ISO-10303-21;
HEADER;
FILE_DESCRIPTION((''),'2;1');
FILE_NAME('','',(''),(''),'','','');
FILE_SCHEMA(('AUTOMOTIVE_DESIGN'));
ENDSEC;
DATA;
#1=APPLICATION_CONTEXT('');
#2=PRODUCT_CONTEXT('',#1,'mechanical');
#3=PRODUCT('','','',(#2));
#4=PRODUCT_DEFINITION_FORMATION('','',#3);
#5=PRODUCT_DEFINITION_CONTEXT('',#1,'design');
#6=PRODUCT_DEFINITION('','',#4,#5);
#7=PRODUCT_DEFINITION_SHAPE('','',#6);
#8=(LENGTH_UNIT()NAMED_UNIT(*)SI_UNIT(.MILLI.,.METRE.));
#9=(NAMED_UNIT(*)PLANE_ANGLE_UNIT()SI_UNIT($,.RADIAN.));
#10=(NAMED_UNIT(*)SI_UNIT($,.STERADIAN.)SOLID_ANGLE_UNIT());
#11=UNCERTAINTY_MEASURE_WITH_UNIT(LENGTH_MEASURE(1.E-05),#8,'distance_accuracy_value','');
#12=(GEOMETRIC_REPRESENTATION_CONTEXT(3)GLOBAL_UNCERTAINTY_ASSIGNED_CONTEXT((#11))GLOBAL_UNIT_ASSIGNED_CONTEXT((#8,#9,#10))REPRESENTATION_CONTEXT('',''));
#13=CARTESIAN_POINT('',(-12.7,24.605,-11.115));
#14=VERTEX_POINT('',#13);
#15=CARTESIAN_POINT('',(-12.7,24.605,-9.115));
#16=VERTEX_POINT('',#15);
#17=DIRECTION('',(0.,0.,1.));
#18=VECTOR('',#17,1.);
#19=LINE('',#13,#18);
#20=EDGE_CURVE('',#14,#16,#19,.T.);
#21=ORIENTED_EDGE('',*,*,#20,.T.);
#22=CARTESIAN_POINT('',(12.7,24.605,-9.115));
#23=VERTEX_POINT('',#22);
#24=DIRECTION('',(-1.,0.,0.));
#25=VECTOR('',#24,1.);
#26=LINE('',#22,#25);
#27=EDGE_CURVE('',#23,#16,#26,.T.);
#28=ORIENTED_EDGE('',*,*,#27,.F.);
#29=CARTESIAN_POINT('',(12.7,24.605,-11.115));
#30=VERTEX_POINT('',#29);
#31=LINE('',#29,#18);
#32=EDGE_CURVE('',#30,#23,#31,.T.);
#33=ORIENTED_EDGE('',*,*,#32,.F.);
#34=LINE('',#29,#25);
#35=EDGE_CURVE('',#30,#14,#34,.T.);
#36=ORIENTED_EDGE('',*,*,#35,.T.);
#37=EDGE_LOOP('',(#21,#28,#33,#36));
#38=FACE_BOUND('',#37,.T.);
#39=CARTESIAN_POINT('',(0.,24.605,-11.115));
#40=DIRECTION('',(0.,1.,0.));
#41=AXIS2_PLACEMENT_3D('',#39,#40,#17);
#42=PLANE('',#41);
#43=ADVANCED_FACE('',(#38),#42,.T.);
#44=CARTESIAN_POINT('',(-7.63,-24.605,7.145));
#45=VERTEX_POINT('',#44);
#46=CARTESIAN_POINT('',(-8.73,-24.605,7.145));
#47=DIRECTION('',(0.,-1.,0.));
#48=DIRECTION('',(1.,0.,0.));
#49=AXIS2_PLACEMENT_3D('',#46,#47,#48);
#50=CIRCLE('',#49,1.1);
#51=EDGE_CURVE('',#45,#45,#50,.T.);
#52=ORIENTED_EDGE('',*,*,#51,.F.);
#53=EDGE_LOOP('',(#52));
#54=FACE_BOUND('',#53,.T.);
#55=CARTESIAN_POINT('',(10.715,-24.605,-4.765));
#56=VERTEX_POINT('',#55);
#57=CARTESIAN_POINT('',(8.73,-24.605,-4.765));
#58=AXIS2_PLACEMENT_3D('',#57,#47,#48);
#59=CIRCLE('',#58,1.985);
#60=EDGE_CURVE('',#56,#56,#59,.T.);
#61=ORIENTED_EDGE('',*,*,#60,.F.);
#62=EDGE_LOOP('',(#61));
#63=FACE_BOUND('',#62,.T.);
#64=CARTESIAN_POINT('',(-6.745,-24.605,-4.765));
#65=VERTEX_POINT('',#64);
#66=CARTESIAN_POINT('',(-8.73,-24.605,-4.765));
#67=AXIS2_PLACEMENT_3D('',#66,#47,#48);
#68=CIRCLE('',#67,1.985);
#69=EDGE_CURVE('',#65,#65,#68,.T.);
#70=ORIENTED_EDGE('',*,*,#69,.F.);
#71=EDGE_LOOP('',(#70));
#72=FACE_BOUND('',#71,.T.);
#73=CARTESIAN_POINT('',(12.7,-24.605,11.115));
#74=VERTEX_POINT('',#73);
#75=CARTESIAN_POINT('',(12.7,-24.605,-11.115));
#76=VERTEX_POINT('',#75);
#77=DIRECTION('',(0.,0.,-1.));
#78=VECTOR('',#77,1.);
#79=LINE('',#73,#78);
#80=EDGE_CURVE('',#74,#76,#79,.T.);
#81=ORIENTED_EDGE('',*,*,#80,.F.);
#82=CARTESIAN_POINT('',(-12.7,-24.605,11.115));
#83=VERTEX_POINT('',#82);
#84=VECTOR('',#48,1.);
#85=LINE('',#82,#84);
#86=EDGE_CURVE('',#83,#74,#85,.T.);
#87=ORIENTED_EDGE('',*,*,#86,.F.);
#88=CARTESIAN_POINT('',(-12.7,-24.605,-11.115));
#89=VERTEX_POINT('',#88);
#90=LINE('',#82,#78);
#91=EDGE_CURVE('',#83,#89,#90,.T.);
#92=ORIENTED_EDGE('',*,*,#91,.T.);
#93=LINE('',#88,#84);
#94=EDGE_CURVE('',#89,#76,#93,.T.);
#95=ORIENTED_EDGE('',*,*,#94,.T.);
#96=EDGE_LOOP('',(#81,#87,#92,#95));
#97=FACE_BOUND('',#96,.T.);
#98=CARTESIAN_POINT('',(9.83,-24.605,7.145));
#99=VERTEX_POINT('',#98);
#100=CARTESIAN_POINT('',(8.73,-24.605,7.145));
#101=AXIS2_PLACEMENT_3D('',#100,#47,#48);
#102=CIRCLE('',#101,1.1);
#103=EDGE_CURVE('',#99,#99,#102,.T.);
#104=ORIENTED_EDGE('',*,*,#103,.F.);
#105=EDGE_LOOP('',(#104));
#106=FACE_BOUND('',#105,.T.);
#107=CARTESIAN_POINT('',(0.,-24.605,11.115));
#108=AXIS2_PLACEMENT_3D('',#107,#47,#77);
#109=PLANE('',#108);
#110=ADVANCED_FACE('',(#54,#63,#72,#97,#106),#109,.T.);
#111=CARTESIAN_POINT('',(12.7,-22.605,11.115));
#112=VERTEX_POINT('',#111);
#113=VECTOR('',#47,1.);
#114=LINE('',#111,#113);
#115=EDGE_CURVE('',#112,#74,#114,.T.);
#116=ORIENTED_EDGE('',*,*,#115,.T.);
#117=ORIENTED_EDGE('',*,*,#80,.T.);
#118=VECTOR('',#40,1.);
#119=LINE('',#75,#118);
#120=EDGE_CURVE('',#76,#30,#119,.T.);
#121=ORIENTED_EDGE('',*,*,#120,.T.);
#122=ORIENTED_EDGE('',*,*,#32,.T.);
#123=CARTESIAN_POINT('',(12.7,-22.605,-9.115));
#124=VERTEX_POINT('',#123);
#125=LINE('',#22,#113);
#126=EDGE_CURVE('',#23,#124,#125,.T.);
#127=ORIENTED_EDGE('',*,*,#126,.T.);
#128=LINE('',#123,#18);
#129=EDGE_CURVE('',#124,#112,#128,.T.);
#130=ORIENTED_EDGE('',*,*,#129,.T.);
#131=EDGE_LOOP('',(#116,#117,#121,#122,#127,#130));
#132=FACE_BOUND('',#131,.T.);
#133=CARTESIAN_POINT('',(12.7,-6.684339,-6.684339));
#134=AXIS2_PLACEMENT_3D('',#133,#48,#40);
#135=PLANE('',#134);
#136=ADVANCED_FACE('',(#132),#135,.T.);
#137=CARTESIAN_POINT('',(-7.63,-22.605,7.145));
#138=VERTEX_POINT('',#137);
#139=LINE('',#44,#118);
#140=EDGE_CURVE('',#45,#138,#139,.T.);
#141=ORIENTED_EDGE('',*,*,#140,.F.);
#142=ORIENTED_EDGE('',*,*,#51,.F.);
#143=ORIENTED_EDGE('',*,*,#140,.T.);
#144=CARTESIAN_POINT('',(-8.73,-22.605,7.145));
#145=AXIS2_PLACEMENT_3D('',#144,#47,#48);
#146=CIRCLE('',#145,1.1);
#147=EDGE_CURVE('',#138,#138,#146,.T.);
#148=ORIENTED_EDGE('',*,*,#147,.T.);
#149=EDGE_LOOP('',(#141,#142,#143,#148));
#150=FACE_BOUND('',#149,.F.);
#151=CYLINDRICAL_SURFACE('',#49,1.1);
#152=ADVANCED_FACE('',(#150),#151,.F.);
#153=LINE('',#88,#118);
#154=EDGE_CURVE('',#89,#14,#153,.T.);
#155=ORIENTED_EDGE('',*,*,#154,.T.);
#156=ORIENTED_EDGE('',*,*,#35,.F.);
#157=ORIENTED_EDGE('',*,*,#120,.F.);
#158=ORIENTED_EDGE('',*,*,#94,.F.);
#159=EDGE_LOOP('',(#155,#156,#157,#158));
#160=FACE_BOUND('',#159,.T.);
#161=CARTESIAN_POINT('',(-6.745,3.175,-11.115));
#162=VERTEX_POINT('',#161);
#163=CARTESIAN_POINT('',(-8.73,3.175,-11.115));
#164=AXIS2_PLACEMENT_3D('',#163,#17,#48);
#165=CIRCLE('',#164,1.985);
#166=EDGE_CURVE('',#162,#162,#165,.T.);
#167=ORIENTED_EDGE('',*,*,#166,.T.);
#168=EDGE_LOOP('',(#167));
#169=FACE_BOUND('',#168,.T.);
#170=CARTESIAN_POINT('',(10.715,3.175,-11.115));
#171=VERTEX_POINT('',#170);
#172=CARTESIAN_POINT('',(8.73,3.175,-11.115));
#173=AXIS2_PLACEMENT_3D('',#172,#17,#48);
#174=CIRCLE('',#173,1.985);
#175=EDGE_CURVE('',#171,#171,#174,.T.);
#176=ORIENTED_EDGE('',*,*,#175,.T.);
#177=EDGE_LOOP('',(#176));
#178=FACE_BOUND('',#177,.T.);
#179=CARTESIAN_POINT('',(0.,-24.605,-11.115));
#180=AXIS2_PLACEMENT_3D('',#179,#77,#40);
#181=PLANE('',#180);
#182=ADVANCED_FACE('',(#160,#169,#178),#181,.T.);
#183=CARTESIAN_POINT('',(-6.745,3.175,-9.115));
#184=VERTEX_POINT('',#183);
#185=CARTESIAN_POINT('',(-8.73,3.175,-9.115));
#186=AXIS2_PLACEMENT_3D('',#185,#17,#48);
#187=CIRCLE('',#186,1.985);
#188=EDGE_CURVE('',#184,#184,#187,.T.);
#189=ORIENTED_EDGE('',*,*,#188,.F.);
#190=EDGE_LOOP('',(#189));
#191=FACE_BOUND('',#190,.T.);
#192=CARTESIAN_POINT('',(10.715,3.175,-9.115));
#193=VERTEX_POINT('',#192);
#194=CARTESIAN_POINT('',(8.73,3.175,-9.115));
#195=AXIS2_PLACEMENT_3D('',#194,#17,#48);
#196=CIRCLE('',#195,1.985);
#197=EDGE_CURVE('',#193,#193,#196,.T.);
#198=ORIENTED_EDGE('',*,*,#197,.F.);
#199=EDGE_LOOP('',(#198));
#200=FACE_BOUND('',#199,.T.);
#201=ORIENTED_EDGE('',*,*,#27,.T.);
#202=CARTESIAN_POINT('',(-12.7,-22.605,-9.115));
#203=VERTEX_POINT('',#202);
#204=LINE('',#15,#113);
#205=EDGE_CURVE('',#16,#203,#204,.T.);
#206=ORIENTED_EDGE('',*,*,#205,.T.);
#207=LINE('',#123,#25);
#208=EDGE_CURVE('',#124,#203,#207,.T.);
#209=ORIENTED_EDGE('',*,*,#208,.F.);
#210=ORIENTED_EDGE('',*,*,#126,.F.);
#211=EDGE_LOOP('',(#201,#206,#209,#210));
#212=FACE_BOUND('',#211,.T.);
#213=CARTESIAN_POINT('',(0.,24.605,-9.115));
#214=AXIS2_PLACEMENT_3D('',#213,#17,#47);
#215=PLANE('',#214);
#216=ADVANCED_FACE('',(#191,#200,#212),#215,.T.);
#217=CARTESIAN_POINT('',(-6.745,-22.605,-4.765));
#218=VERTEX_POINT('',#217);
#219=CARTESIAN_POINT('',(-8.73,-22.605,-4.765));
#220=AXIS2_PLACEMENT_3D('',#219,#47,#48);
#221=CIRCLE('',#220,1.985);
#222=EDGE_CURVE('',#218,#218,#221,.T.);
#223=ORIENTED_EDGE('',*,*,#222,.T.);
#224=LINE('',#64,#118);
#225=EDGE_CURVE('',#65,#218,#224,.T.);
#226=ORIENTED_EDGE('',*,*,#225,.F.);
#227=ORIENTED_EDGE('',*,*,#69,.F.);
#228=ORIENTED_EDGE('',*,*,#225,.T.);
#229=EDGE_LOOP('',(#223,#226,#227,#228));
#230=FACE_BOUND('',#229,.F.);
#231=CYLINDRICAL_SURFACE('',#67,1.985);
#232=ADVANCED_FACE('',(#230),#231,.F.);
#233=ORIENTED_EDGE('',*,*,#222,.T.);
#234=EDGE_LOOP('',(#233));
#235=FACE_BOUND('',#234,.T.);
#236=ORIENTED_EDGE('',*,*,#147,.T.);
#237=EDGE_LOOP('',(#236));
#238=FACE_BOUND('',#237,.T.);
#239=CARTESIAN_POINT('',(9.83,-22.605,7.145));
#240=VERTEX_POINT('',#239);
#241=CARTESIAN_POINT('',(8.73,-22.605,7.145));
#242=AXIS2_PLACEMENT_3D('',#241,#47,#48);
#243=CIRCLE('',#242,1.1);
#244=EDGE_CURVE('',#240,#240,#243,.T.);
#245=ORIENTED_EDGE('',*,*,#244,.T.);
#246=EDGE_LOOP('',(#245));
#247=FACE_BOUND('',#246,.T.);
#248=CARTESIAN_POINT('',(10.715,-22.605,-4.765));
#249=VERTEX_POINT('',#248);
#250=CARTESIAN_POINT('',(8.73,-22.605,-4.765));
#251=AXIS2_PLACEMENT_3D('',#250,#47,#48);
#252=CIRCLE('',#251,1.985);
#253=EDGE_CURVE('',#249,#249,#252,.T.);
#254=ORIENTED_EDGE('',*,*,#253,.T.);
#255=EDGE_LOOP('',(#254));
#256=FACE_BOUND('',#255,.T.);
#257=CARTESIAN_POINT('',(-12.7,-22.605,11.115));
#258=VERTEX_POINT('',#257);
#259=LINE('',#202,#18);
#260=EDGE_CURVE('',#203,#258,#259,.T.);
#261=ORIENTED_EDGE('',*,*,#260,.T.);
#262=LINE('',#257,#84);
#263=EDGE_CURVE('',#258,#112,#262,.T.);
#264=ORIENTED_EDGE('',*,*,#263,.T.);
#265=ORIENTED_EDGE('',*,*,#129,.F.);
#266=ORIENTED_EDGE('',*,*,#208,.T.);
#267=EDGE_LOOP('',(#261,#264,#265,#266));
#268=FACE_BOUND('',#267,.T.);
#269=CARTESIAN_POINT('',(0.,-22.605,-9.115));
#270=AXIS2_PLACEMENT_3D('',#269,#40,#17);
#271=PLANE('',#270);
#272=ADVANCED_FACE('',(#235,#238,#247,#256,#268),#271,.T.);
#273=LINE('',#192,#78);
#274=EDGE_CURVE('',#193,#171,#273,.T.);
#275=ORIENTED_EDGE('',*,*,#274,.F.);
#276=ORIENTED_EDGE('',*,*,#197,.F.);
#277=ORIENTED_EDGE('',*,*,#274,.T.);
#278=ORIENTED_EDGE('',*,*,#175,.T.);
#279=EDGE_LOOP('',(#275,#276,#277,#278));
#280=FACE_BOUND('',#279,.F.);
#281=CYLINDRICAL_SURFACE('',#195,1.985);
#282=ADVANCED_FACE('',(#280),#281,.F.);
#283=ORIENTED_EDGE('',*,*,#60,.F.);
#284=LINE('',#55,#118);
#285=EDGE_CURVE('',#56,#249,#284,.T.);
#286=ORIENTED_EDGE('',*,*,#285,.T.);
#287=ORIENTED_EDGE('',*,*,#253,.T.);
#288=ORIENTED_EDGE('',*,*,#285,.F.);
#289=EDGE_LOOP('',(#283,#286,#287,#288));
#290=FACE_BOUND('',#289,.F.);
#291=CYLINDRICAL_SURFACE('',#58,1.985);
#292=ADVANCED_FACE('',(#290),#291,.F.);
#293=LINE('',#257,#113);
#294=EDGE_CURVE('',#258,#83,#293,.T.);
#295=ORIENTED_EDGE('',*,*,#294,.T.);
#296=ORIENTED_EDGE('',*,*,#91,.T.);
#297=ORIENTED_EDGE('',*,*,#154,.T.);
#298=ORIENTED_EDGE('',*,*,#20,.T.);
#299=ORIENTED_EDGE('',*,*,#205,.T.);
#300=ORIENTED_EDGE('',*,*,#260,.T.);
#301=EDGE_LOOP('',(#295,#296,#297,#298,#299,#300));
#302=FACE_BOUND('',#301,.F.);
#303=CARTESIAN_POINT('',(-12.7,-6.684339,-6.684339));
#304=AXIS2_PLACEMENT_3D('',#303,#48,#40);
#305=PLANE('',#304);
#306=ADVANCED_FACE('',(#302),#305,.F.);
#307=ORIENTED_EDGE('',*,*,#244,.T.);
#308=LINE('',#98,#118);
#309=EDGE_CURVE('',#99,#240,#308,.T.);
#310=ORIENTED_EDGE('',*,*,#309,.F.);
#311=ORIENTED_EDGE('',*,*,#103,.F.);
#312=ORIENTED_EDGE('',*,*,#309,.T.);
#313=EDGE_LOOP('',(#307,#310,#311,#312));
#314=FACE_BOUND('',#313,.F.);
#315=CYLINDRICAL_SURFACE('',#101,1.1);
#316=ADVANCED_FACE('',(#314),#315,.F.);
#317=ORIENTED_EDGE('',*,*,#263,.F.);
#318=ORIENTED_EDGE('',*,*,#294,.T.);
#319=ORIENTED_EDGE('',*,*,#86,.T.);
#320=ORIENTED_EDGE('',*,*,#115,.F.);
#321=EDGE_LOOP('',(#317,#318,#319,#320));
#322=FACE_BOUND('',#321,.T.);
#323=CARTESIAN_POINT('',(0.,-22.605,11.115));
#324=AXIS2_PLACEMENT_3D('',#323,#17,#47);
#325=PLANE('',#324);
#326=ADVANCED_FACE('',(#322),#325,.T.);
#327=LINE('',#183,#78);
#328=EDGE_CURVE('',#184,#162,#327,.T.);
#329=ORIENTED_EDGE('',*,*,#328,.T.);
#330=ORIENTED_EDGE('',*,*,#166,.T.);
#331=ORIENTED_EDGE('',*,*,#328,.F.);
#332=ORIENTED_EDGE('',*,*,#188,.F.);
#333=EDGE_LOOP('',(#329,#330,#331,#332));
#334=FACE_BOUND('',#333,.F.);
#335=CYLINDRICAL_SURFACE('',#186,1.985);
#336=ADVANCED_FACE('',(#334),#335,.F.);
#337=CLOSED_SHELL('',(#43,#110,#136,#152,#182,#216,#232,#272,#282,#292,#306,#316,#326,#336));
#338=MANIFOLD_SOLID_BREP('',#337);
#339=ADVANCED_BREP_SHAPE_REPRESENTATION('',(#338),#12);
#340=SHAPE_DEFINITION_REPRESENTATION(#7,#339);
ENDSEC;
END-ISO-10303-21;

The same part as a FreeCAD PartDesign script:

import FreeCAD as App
import Part
import Sketcher
Q = App.Units.Quantity

doc = App.newDocument("Part")
body = doc.addObject("PartDesign::Body", "Body")

# Sketch on YZ plane
sketch1 = doc.addObject("Sketcher::SketchObject", "Sketch")
body.addObject(sketch1)
sketch1.AttachmentSupport = (doc.YZ_Plane, [""])
sketch1.MapMode = "FlatFace"
sketch1.addGeometry(Part.LineSegment(App.Vector(-22.6, -9.1, 0), App.Vector(-22.6, 11.1, 0)), False)
sketch1.addGeometry(Part.LineSegment(App.Vector(-22.6, 11.1, 0), App.Vector(-24.6, 11.1, 0)), False)
sketch1.addGeometry(Part.LineSegment(App.Vector(-24.6, 11.1, 0), App.Vector(-24.6, -11.1, 0)), False)
sketch1.addGeometry(Part.LineSegment(App.Vector(-24.6, -11.1, 0), App.Vector(24.6, -11.1, 0)), False)
sketch1.addGeometry(Part.LineSegment(App.Vector(24.6, -11.1, 0), App.Vector(24.6, -9.1, 0)), False)
sketch1.addGeometry(Part.LineSegment(App.Vector(24.6, -9.1, 0), App.Vector(-22.6, -9.1, 0)), False)
sketch1.addConstraint(Sketcher.Constraint("Coincident", 0, 2, 1, 1))
sketch1.addConstraint(Sketcher.Constraint("Coincident", 1, 2, 2, 1))
sketch1.addConstraint(Sketcher.Constraint("Coincident", 2, 2, 3, 1))
sketch1.addConstraint(Sketcher.Constraint("Coincident", 3, 2, 4, 1))
sketch1.addConstraint(Sketcher.Constraint("Coincident", 4, 2, 5, 1))
sketch1.addConstraint(Sketcher.Constraint("Coincident", 5, 2, 0, 1))
sketch1.addConstraint(Sketcher.Constraint("Vertical", 0))
sketch1.addConstraint(Sketcher.Constraint("Horizontal", 1))
sketch1.addConstraint(Sketcher.Constraint("Vertical", 2))
sketch1.addConstraint(Sketcher.Constraint("Horizontal", 3))
sketch1.addConstraint(Sketcher.Constraint("Vertical", 4))
sketch1.addConstraint(Sketcher.Constraint("Horizontal", 5))
sketch1.addConstraint(Sketcher.Constraint("Symmetric", 1, 2, 3, 2, -1, 1))
sketch1.addConstraint(Sketcher.Constraint("Equal", 1, 4))
sketch1.addConstraint(Sketcher.Constraint("DistanceX", 1, 2, 1, 1, Q("2 mm")))
sketch1.addConstraint(Sketcher.Constraint("DistanceX", 3, 1, 3, 2, Q("49.21 mm")))
sketch1.addConstraint(Sketcher.Constraint("DistanceY", 0, 1, 0, 2, Q("20.23 mm")))
pad1 = doc.addObject("PartDesign::Pad", "Pad")
body.addObject(pad1)
pad1.Profile = sketch1
pad1.Length = 25.4
pad1.Midplane = True

# Sketch on XZ plane
sketch2 = doc.addObject("Sketcher::SketchObject", "Sketch001")
body.addObject(sketch2)
sketch2.AttachmentSupport = (doc.XZ_Plane, [""])
sketch2.MapMode = "FlatFace"
sketch2.AttachmentOffset = App.Placement(App.Vector(0, 0, 24.605), App.Rotation())
sketch2.addGeometry(Part.Circle(App.Vector(8.7, -4.8, 0), App.Vector(0, 0, 1), 2), False)
sketch2.addGeometry(Part.Circle(App.Vector(8.7, 7.1, 0), App.Vector(0, 0, 1), 1.1), False)
sketch2.addGeometry(Part.Circle(App.Vector(-8.7, -4.8, 0), App.Vector(0, 0, 1), 2), False)
sketch2.addGeometry(Part.Circle(App.Vector(-8.7, 7.1, 0), App.Vector(0, 0, 1), 1.1), False)
sketch2.addConstraint(Sketcher.Constraint("Equal", 0, 2))
sketch2.addConstraint(Sketcher.Constraint("Equal", 1, 3))
sketch2.addConstraint(Sketcher.Constraint("Symmetric", 0, 3, 2, 3, -2))
sketch2.addConstraint(Sketcher.Constraint("Symmetric", 1, 3, 3, 3, -2))
sketch2.addConstraint(Sketcher.Constraint("Vertical", 0, 3, 1, 3))
sketch2.addConstraint(Sketcher.Constraint("Diameter", 1, Q("2.2 mm")))
sketch2.addConstraint(Sketcher.Constraint("Diameter", 0, Q("3.97 mm")))
sketch2.addConstraint(Sketcher.Constraint("DistanceX", -1, 1, 0, 3, Q("8.73 mm")))
sketch2.addConstraint(Sketcher.Constraint("DistanceY", 0, 3, 1, 3, Q("11.91 mm")))
sketch2.addConstraint(Sketcher.Constraint("DistanceY", 0, 3, -1, 1, Q("4.765 mm")))
pocket1 = doc.addObject("PartDesign::Pocket", "Pocket")
body.addObject(pocket1)
pocket1.Profile = sketch2
pocket1.Type = "ThroughAll"

# Sketch on XY plane
sketch3 = doc.addObject("Sketcher::SketchObject", "Sketch002")
body.addObject(sketch3)
sketch3.AttachmentSupport = (doc.XY_Plane, [""])
sketch3.MapMode = "FlatFace"
sketch3.AttachmentOffset = App.Placement(App.Vector(0, 0, -9.115), App.Rotation())
sketch3.addGeometry(Part.Circle(App.Vector(-8.7, 3.2, 0), App.Vector(0, 0, 1), 2), False)
sketch3.addGeometry(Part.Circle(App.Vector(8.7, 3.2, 0), App.Vector(0, 0, 1), 2), False)
sketch3.addConstraint(Sketcher.Constraint("Equal", 0, 1))
sketch3.addConstraint(Sketcher.Constraint("Symmetric", 0, 3, 1, 3, -2))
sketch3.addConstraint(Sketcher.Constraint("Diameter", 0, Q("3.97 mm")))
sketch3.addConstraint(Sketcher.Constraint("DistanceX", 0, 3, -1, 1, Q("8.73 mm")))
sketch3.addConstraint(Sketcher.Constraint("DistanceY", -1, 1, 0, 3, Q("3.175 mm")))
pocket2 = doc.addObject("PartDesign::Pocket", "Pocket001")
body.addObject(pocket2)
pocket2.Profile = sketch3
pocket2.Type = "ThroughAll"

doc.recompute()
